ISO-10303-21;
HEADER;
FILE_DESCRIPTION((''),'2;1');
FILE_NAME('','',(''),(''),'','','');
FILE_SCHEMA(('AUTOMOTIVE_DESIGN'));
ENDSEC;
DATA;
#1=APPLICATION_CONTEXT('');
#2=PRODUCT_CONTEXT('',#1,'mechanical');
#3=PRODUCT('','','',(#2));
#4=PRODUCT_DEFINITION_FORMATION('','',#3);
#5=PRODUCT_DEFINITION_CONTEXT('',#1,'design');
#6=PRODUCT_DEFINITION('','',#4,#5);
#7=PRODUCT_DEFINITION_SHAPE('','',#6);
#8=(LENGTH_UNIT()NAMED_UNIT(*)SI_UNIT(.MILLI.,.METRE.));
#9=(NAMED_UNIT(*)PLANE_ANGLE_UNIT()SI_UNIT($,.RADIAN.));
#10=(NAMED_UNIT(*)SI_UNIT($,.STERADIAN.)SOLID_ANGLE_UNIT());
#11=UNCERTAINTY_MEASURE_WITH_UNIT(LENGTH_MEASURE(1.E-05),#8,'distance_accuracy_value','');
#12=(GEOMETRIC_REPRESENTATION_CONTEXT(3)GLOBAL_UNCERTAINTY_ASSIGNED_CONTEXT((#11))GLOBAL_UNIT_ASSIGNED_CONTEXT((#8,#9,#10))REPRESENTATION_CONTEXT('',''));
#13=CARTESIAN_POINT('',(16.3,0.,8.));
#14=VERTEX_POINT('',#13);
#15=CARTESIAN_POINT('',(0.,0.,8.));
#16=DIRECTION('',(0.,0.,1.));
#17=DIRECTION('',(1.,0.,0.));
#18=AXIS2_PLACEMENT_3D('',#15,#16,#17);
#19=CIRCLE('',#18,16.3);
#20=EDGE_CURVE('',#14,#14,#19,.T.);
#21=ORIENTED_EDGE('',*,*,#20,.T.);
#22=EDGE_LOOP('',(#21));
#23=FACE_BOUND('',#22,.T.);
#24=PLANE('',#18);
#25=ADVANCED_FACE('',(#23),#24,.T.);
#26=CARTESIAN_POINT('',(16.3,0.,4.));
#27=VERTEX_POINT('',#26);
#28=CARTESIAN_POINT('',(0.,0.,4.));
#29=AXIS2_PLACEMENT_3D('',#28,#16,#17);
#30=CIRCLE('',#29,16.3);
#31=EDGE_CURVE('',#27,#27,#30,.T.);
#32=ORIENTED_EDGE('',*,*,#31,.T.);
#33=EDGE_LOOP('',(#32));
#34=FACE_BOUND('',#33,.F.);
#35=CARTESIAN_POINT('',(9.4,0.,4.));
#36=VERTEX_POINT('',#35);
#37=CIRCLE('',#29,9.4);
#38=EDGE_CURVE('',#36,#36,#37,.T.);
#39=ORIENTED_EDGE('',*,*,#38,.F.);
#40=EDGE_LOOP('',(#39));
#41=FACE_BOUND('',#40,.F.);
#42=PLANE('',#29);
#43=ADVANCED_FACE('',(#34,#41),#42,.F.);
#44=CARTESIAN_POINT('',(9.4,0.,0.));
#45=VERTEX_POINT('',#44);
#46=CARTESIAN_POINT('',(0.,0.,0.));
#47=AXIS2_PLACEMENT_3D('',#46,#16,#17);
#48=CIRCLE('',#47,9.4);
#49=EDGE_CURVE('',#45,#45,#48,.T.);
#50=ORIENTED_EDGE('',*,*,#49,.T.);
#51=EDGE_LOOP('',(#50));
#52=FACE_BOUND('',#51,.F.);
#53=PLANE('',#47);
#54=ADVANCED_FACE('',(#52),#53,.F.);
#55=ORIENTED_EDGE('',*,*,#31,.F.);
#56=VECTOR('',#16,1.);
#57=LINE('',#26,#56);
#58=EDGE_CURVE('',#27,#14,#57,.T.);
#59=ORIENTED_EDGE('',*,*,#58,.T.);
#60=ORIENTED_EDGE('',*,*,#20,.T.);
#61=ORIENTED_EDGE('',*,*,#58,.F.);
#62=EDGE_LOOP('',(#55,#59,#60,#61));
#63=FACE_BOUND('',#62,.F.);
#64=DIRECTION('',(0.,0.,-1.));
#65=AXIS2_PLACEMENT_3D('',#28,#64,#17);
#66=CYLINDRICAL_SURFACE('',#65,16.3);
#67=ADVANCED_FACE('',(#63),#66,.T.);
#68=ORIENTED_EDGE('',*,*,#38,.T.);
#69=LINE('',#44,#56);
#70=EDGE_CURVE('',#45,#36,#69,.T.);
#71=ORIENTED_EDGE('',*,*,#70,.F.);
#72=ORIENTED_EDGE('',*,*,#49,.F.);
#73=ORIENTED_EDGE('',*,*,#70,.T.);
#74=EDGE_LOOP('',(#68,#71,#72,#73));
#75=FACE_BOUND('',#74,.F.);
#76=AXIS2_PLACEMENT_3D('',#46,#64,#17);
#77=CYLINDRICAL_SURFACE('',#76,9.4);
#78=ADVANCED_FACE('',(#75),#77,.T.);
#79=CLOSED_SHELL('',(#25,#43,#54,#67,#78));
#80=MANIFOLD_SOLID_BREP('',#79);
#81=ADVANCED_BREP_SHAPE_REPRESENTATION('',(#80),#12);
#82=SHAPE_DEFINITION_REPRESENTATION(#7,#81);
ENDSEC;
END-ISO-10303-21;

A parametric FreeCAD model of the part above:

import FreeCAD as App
import Part
import Sketcher

V = App.Vector
Q = App.Units.Quantity

doc = App.newDocument("Part")
body = doc.addObject("PartDesign::Body", "Body")

# Sketch on XY plane
sketch1 = body.newObject("Sketcher::SketchObject", "Sketch")
sketch1.AttachmentSupport = (doc.getObject("XY_Plane"), [""])
sketch1.MapMode = "FlatFace"
sketch1.addGeometry(Part.Circle(V(0, 0, 0), V(0, 0, 1), 9), False)
sketch1.addConstraint(Sketcher.Constraint("Coincident", 0, 3, -1, 1))
sketch1.addConstraint(Sketcher.Constraint("Diameter", 0, Q("18.8 mm")))
pad1 = body.newObject("PartDesign::Pad", "Pad")
pad1.Profile = sketch1
pad1.Length = 4

# Sketch on XY plane
sketch2 = body.newObject("Sketcher::SketchObject", "Sketch001")
sketch2.AttachmentSupport = (doc.getObject("XY_Plane"), [""])
sketch2.MapMode = "FlatFace"
sketch2.AttachmentOffset = App.Placement(V(0, 0, 4), App.Rotation())
sketch2.addGeometry(Part.Circle(V(0, 0, 0), V(0, 0, 1), 16), False)
sketch2.addConstraint(Sketcher.Constraint("Coincident", 0, 3, -1, 1))
sketch2.addConstraint(Sketcher.Constraint("Diameter", 0, Q("32.6 mm")))
pad2 = body.newObject("PartDesign::Pad", "Pad001")
pad2.Profile = sketch2
pad2.Length = 4

doc.recompute()
